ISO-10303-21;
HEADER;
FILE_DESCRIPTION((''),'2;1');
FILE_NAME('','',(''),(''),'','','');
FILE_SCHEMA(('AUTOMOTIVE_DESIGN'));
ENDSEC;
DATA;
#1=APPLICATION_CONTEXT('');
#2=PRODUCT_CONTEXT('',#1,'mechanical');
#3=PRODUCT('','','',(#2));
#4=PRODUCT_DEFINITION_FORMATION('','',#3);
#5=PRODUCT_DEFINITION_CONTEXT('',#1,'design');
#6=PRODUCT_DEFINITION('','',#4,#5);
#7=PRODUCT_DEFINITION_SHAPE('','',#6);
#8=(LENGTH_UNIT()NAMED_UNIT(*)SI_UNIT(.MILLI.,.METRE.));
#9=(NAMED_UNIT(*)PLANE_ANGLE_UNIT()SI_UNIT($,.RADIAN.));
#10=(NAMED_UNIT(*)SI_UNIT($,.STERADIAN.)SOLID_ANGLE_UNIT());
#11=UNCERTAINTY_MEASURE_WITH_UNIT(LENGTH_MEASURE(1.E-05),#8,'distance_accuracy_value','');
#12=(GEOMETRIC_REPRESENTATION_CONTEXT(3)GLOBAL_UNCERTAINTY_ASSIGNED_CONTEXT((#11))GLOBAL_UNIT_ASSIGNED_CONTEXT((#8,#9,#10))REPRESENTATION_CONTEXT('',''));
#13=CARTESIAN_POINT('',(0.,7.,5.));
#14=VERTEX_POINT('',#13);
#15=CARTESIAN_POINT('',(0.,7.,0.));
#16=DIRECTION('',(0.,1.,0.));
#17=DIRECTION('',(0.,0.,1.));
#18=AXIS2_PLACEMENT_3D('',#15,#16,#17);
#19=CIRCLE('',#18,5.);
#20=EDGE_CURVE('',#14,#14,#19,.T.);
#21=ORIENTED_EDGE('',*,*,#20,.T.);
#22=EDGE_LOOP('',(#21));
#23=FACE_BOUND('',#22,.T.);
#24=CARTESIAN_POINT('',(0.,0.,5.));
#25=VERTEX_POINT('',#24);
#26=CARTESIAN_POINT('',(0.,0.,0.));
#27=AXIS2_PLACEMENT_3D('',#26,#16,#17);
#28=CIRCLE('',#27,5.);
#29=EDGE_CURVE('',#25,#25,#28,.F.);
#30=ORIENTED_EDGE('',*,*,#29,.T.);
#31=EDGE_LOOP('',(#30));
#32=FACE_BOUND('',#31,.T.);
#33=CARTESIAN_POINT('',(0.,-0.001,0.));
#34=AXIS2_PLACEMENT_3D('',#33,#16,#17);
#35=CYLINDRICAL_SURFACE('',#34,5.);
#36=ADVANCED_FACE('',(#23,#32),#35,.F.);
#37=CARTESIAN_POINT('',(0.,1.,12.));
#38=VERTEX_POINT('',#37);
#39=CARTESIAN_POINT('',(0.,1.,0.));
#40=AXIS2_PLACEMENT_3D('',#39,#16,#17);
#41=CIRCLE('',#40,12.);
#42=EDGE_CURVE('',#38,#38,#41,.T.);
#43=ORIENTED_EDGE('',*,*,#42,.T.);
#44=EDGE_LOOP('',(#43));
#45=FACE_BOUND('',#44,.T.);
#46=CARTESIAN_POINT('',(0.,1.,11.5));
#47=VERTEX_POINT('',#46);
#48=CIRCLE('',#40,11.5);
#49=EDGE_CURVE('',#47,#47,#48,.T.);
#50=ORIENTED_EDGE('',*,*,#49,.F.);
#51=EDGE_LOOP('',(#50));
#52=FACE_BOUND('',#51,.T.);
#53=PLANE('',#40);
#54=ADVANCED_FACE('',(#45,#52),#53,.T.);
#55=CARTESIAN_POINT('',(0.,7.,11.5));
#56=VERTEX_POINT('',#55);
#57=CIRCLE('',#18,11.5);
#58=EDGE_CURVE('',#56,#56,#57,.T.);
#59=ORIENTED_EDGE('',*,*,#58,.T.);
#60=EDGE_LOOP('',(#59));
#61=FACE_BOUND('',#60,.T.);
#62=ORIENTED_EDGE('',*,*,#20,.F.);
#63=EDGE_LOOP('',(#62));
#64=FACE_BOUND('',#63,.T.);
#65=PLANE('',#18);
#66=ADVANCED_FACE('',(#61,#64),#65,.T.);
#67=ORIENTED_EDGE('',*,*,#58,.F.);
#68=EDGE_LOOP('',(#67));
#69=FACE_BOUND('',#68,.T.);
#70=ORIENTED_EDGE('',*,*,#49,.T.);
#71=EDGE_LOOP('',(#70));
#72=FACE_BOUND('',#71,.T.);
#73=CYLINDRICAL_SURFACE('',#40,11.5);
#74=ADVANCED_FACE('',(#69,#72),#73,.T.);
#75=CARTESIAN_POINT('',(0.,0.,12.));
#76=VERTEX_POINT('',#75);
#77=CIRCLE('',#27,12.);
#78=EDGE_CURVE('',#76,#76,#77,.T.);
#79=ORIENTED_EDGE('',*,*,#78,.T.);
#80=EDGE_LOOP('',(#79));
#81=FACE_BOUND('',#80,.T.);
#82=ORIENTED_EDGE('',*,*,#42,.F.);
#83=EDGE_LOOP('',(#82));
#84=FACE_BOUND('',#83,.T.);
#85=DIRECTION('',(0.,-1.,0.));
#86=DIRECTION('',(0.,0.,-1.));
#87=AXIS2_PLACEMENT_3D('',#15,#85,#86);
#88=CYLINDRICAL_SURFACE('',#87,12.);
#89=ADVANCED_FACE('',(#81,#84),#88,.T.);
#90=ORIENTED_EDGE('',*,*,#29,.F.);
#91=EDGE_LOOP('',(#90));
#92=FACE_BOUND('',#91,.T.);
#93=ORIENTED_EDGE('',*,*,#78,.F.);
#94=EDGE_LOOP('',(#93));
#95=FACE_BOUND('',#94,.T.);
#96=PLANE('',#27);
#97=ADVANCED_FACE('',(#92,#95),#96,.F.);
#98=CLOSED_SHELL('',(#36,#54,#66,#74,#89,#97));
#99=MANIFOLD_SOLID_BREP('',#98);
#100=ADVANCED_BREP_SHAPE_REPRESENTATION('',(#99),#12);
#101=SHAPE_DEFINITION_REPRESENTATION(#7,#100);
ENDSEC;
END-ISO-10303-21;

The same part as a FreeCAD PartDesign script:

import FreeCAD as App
import Part
import Sketcher

V = App.Vector
Q = App.Units.Quantity

doc = App.newDocument("Part")
body = doc.addObject("PartDesign::Body", "Body")

# Sketch on XZ plane
sketch1 = body.newObject("Sketcher::SketchObject", "Sketch")
sketch1.AttachmentSupport = (doc.getObject("XZ_Plane"), [""])
sketch1.MapMode = "FlatFace"
sketch1.addGeometry(Part.Circle(V(0, 0, 0), V(0, 0, 1), 12), False)
sketch1.addConstraint(Sketcher.Constraint("Coincident", 0, 3, -1, 1))
sketch1.addConstraint(Sketcher.Constraint("Diameter", 0, Q("24 mm")))
pad1 = body.newObject("PartDesign::Pad", "Pad")
pad1.Profile = sketch1
pad1.Length = 7
pad1.Reversed = True

# Sketch on XZ plane
sketch2 = body.newObject("Sketcher::SketchObject", "Sketch001")
sketch2.AttachmentSupport = (doc.getObject("XZ_Plane"), [""])
sketch2.MapMode = "FlatFace"
sketch2.AttachmentOffset = App.Placement(V(0, 0, -7), App.Rotation())
sketch2.addGeometry(Part.LineSegment(V(-16, -16, 0), V(-16, 16, 0)), False)
sketch2.addGeometry(Part.LineSegment(V(-16, 16, 0), V(16, 16, 0)), False)
sketch2.addGeometry(Part.LineSegment(V(16, 16, 0), V(16, -16, 0)), False)
sketch2.addGeometry(Part.LineSegment(V(16, -16, 0), V(-16, -16, 0)), False)
sketch2.addGeometry(Part.Circle(V(0, 0, 0), V(0, 0, 1), 12), False)
sketch2.addConstraint(Sketcher.Constraint("Coincident", 0, 2, 1, 1))
sketch2.addConstraint(Sketcher.Constraint("Coincident", 1, 2, 2, 1))
sketch2.addConstraint(Sketcher.Constraint("Coincident", 2, 2, 3, 1))
sketch2.addConstraint(Sketcher.Constraint("Coincident", 3, 2, 0, 1))
sketch2.addConstraint(Sketcher.Constraint("Vertical", 0))
sketch2.addConstraint(Sketcher.Constraint("Horizontal", 1))
sketch2.addConstraint(Sketcher.Constraint("Vertical", 2))
sketch2.addConstraint(Sketcher.Constraint("Horizontal", 3))
sketch2.addConstraint(Sketcher.Constraint("Coincident", 4, 3, -1, 1))
sketch2.addConstraint(Sketcher.Constraint("Symmetric", 0, 2, 2, 2, -1, 1))
sketch2.addConstraint(Sketcher.Constraint("Equal", 3, 0))
sketch2.addConstraint(Sketcher.Constraint("Diameter", 4, Q("23 mm")))
sketch2.addConstraint(Sketcher.Constraint("DistanceX", 1, 1, 1, 2, Q("32.932 mm")))
pocket1 = body.newObject("PartDesign::Pocket", "Pocket")
pocket1.Profile = sketch2
pocket1.Length = 6
pocket1.Reversed = True

# Sketch on XZ plane
sketch3 = body.newObject("Sketcher::SketchObject", "Sketch002")
sketch3.AttachmentSupport = (doc.getObject("XZ_Plane"), [""])
sketch3.MapMode = "FlatFace"
sketch3.AttachmentOffset = App.Placement(V(0, 0, -7), App.Rotation())
sketch3.addGeometry(Part.Circle(V(0, 0, 0), V(0, 0, 1), 5), False)
sketch3.addConstraint(Sketcher.Constraint("Coincident", 0, 3, -1, 1))
sketch3.addConstraint(Sketcher.Constraint("Diameter", 0, Q("10 mm")))
pocket2 = body.newObject("PartDesign::Pocket", "Pocket001")
pocket2.Profile = sketch3
pocket2.Type = "UpToFirst"
pocket2.Reversed = True

doc.recompute()
